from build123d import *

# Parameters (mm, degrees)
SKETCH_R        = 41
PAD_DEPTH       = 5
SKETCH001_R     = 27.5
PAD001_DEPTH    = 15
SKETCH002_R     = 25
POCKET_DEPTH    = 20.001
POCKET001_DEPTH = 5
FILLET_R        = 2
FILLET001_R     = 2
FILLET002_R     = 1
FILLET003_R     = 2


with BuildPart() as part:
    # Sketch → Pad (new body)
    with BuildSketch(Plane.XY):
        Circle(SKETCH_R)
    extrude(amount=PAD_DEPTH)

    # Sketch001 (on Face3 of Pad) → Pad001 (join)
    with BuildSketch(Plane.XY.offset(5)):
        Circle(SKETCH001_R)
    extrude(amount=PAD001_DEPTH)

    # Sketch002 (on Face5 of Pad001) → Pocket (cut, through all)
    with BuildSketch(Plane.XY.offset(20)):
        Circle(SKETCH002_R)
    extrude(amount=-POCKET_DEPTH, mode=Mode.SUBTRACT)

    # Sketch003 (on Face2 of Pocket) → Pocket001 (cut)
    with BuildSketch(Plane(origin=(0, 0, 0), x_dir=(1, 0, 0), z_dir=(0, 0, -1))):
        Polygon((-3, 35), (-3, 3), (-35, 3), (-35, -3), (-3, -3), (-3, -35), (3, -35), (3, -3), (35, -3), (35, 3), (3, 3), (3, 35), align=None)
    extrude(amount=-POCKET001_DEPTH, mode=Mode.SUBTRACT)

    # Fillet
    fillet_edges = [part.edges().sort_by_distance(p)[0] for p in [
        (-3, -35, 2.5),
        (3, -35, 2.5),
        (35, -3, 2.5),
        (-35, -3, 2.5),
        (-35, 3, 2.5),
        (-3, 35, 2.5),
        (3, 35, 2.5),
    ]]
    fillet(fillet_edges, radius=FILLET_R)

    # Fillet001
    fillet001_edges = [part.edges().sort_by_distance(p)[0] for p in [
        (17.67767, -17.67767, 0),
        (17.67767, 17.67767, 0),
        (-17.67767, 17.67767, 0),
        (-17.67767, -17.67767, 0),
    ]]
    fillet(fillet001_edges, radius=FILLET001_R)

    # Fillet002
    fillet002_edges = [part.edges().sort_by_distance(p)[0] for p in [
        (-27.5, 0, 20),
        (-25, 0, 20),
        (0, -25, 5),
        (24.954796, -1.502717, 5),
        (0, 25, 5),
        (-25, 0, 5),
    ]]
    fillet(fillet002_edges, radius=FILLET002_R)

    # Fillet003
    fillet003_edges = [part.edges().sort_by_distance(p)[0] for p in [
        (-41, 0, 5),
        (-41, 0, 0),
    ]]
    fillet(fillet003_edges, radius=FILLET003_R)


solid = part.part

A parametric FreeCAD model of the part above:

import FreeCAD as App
import Part
import Sketcher
from FreeCAD import Vector
Q = App.Units.Quantity


def edges_at(feature, points):
    """Names of the edges that pass closest to the given points."""
    edges = feature.Shape.Edges
    near = lambda p: min(range(len(edges)), key=lambda i: edges[i].distToShape(Part.Vertex(*p))[0])
    return sorted({f"Edge{near(p) + 1}" for p in points})

doc = App.newDocument("Part")
body = doc.addObject("PartDesign::Body", "Body")

# Sketch on XY plane
sketch1 = body.newObject("Sketcher::SketchObject", "Sketch")
sketch1.AttachmentSupport = (doc.getObject("XY_Plane"), [""])
sketch1.MapMode = "FlatFace"
sketch1.addGeometry(Part.Circle(Vector(0, 0, 0), Vector(0, 0, 1), 41), False)
sketch1.addConstraint([
    Sketcher.Constraint("Coincident", 0, 3, -1, 1),
    Sketcher.Constraint("Diameter", 0, Q("82 mm")),
])
pad1 = body.newObject("PartDesign::Pad", "Pad")
pad1.Profile = sketch1
pad1.Length = 5

# Sketch on XY plane
sketch2 = body.newObject("Sketcher::SketchObject", "Sketch001")
sketch2.AttachmentSupport = (doc.getObject("XY_Plane"), [""])
sketch2.MapMode = "FlatFace"
sketch2.AttachmentOffset = App.Placement(Vector(0, 0, 5), App.Rotation())
sketch2.addGeometry(Part.Circle(Vector(0, 0, 0), Vector(0, 0, 1), 28), False)
sketch2.addConstraint([
    Sketcher.Constraint("Coincident", 0, 3, -1, 1),
    Sketcher.Constraint("Diameter", 0, Q("55 mm")),
])
pad2 = body.newObject("PartDesign::Pad", "Pad001")
pad2.Profile = sketch2
pad2.Length = 15

# Sketch on XY plane
sketch3 = body.newObject("Sketcher::SketchObject", "Sketch002")
sketch3.AttachmentSupport = (doc.getObject("XY_Plane"), [""])
sketch3.MapMode = "FlatFace"
sketch3.AttachmentOffset = App.Placement(Vector(0, 0, 20), App.Rotation())
sketch3.addGeometry(Part.Circle(Vector(0, 0, 0), Vector(0, 0, 1), 25), False)
sketch3.addConstraint([
    Sketcher.Constraint("Coincident", 0, 3, -1, 1),
    Sketcher.Constraint("Diameter", 0, Q("50 mm")),
])
pocket1 = body.newObject("PartDesign::Pocket", "Pocket")
pocket1.Profile = sketch3
pocket1.Type = "ThroughAll"

# Sketch on XY plane
sketch4 = body.newObject("Sketcher::SketchObject", "Sketch003")
sketch4.AttachmentSupport = (doc.getObject("XY_Plane"), [""])
sketch4.MapMode = "FlatFace"
sketch4.addGeometry([
    Part.LineSegment(Vector(-3, -35, 0), Vector(-3, -3, 0)),  # 0
    Part.LineSegment(Vector(-3, -3, 0), Vector(-35, -3, 0)),  # 1
    Part.LineSegment(Vector(-35, -3, 0), Vector(-35, 3, 0)),  # 2
    Part.LineSegment(Vector(-35, 3, 0), Vector(-3, 3, 0)),  # 3
    Part.LineSegment(Vector(-3, 3, 0), Vector(-3, 35, 0)),  # 4
    Part.LineSegment(Vector(-3, 35, 0), Vector(3, 35, 0)),  # 5
    Part.LineSegment(Vector(3, 35, 0), Vector(3, 3, 0)),  # 6
    Part.LineSegment(Vector(3, 3, 0), Vector(35, 3, 0)),  # 7
    Part.LineSegment(Vector(35, 3, 0), Vector(35, -3, 0)),  # 8
    Part.LineSegment(Vector(35, -3, 0), Vector(3, -3, 0)),  # 9
    Part.LineSegment(Vector(3, -3, 0), Vector(3, -35, 0)),  # 10
    Part.LineSegment(Vector(3, -35, 0), Vector(-3, -35, 0)),  # 11
], False)
sketch4.addConstraint([
    Sketcher.Constraint("Coincident", 0, 2, 1, 1),
    Sketcher.Constraint("Coincident", 1, 2, 2, 1),
    Sketcher.Constraint("Coincident", 2, 2, 3, 1),
    Sketcher.Constraint("Coincident", 3, 2, 4, 1),
    Sketcher.Constraint("Coincident", 4, 2, 5, 1),
    Sketcher.Constraint("Coincident", 5, 2, 6, 1),
    Sketcher.Constraint("Coincident", 6, 2, 7, 1),
    Sketcher.Constraint("Coincident", 7, 2, 8, 1),
    Sketcher.Constraint("Coincident", 8, 2, 9, 1),
    Sketcher.Constraint("Coincident", 9, 2, 10, 1),
    Sketcher.Constraint("Coincident", 10, 2, 11, 1),
    Sketcher.Constraint("Coincident", 11, 2, 0, 1),
    Sketcher.Constraint("Vertical", 0),
    Sketcher.Constraint("Horizontal", 1),
    Sketcher.Constraint("Vertical", 2),
    Sketcher.Constraint("Horizontal", 3),
    Sketcher.Constraint("Vertical", 4),
    Sketcher.Constraint("Horizontal", 5),
    Sketcher.Constraint("Vertical", 6),
    Sketcher.Constraint("Horizontal", 7),
    Sketcher.Constraint("Vertical", 8),
    Sketcher.Constraint("Horizontal", 9),
    Sketcher.Constraint("Vertical", 10),
    Sketcher.Constraint("Horizontal", 11),
    Sketcher.Constraint("Symmetric", 0, 2, 6, 2, -1, 1),
    Sketcher.Constraint("Symmetric", 2, 2, 8, 2, -1, 1),
    Sketcher.Constraint("Symmetric", 4, 2, 10, 2, -1, 1),
    Sketcher.Constraint("Symmetric", 3, 2, 6, 2, -2),
    Sketcher.Constraint("Equal", 9, 0),
    Sketcher.Constraint("Equal", 11, 2),
    Sketcher.Constraint("DistanceX", 1, 2, 1, 1, Q("32 mm")),
    Sketcher.Constraint("DistanceX", 5, 1, 5, 2, Q("6 mm")),
])
pocket2 = body.newObject("PartDesign::Pocket", "Pocket001")
pocket2.Profile = sketch4
pocket2.Length = 5
pocket2.Reversed = True
doc.recompute()

fillet = body.newObject("PartDesign::Fillet", "Fillet")
fillet.Base = (pocket2, edges_at(pocket2, [
    (-3, -35, 2.5),
    (3, -35, 2.5),
    (35, -3, 2.5),
    (-35, -3, 2.5),
    (-35, 3, 2.5),
    (-3, 35, 2.5),
    (3, 35, 2.5),
]))
fillet.Radius = 2
doc.recompute()

fillet2 = body.newObject("PartDesign::Fillet", "Fillet001")
fillet2.Base = (fillet, edges_at(fillet, [
    (17.678, -17.678, 0),
    (17.678, 17.678, 0),
    (-17.678, 17.678, 0),
    (-17.678, -17.678, 0),
]))
fillet2.Radius = 2
doc.recompute()

fillet3 = body.newObject("PartDesign::Fillet", "Fillet002")
fillet3.Base = (fillet2, edges_at(fillet2, [
    (-27.5, 0, 20),
    (-25, 0, 20),
    (0, -25, 5),
    (24.955, -1.503, 5),
    (0, 25, 5),
    (-25, 0, 5),
]))
fillet3.Radius = 1
doc.recompute()

fillet4 = body.newObject("PartDesign::Fillet", "Fillet003")
fillet4.Base = (fillet3, edges_at(fillet3, [(-41, 0, 5), (-41, 0, 0)]))
fillet4.Radius = 2

doc.recompute()
